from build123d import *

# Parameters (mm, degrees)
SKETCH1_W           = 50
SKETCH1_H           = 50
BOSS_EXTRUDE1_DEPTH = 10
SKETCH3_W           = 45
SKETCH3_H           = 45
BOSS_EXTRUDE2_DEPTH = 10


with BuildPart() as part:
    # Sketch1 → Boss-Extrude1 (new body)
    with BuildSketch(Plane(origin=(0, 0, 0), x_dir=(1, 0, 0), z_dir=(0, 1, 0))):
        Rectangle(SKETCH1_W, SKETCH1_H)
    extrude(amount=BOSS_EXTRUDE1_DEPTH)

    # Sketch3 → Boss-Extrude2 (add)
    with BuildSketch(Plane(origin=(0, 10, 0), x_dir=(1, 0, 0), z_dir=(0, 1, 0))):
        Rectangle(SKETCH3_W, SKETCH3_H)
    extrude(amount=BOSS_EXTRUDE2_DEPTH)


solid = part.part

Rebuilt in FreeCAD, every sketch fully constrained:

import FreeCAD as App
import Part
import Sketcher
from FreeCAD import Vector
Q = App.Units.Quantity

doc = App.newDocument("Part")
params = doc.addObject("Spreadsheet::Sheet", "Params")
for row, (alias, value) in enumerate([
    ("sketch1_width", "50 mm"),
    ("pad1_length", "10 mm"),
    ("sketch2_width", "45 mm"),
    ("pad2_length", "10 mm"),
], start=1):
    params.set(f"A{row}", alias)
    params.set(f"B{row}", "=" + value)
    params.setAlias(f"B{row}", alias)

body = doc.addObject("PartDesign::Body", "Body")

sketch1 = body.newObject("Sketcher::SketchObject", "Sketch")
sketch1.AttachmentSupport = (doc.getObject("XZ_Plane"), [""])
sketch1.MapMode = "FlatFace"
sketch1.addGeometry(Part.LineSegment(Vector(-25, -25, 0), Vector(-25, 25, 0)), False)
sketch1.addGeometry(Part.LineSegment(Vector(-25, 25, 0), Vector(25, 25, 0)), False)
sketch1.addGeometry(Part.LineSegment(Vector(25, 25, 0), Vector(25, -25, 0)), False)
sketch1.addGeometry(Part.LineSegment(Vector(25, -25, 0), Vector(-25, -25, 0)), False)
sketch1.addConstraint(Sketcher.Constraint("Coincident", 0, 2, 1, 1))
sketch1.addConstraint(Sketcher.Constraint("Coincident", 1, 2, 2, 1))
sketch1.addConstraint(Sketcher.Constraint("Coincident", 2, 2, 3, 1))
sketch1.addConstraint(Sketcher.Constraint("Coincident", 3, 2, 0, 1))
sketch1.addConstraint(Sketcher.Constraint("Vertical", 0))
sketch1.addConstraint(Sketcher.Constraint("Horizontal", 1))
sketch1.addConstraint(Sketcher.Constraint("Vertical", 2))
sketch1.addConstraint(Sketcher.Constraint("Horizontal", 3))
sketch1.addConstraint(Sketcher.Constraint("Symmetric", 0, 2, 2, 2, -1, 1))
sketch1.addConstraint(Sketcher.Constraint("Equal", 3, 0))
sketch1.addConstraint(Sketcher.Constraint("DistanceX", 1, 1, 1, 2, Q("50 mm")))
sketch1.setExpression("Constraints[10]", "Params.sketch1_width")
pad1 = body.newObject("PartDesign::Pad", "Pad")
pad1.Profile = sketch1
pad1.setExpression("Length", "Params.pad1_length")
pad1.Reversed = True

sketch2 = body.newObject("Sketcher::SketchObject", "Sketch001")
sketch2.AttachmentSupport = (doc.getObject("XZ_Plane"), [""])
sketch2.MapMode = "FlatFace"
sketch2.AttachmentOffset = App.Placement(Vector(0, 0, -10), App.Rotation())
sketch2.addGeometry(Part.LineSegment(Vector(-22, -22, 0), Vector(-22, 22, 0)), False)
sketch2.addGeometry(Part.LineSegment(Vector(-22, 22, 0), Vector(22, 22, 0)), False)
sketch2.addGeometry(Part.LineSegment(Vector(22, 22, 0), Vector(22, -22, 0)), False)
sketch2.addGeometry(Part.LineSegment(Vector(22, -22, 0), Vector(-22, -22, 0)), False)
sketch2.addConstraint(Sketcher.Constraint("Coincident", 0, 2, 1, 1))
sketch2.addConstraint(Sketcher.Constraint("Coincident", 1, 2, 2, 1))
sketch2.addConstraint(Sketcher.Constraint("Coincident", 2, 2, 3, 1))
sketch2.addConstraint(Sketcher.Constraint("Coincident", 3, 2, 0, 1))
sketch2.addConstraint(Sketcher.Constraint("Vertical", 0))
sketch2.addConstraint(Sketcher.Constraint("Horizontal", 1))
sketch2.addConstraint(Sketcher.Constraint("Vertical", 2))
sketch2.addConstraint(Sketcher.Constraint("Horizontal", 3))
sketch2.addConstraint(Sketcher.Constraint("Symmetric", 0, 2, 2, 2, -1, 1))
sketch2.addConstraint(Sketcher.Constraint("Equal", 3, 0))
sketch2.addConstraint(Sketcher.Constraint("DistanceX", 1, 1, 1, 2, Q("45 mm")))
sketch2.setExpression("Constraints[10]", "Params.sketch2_width")
pad2 = body.newObject("PartDesign::Pad", "Pad001")
pad2.Profile = sketch2
pad2.setExpression("Length", "Params.pad2_length")
pad2.Reversed = True

doc.recompute()
